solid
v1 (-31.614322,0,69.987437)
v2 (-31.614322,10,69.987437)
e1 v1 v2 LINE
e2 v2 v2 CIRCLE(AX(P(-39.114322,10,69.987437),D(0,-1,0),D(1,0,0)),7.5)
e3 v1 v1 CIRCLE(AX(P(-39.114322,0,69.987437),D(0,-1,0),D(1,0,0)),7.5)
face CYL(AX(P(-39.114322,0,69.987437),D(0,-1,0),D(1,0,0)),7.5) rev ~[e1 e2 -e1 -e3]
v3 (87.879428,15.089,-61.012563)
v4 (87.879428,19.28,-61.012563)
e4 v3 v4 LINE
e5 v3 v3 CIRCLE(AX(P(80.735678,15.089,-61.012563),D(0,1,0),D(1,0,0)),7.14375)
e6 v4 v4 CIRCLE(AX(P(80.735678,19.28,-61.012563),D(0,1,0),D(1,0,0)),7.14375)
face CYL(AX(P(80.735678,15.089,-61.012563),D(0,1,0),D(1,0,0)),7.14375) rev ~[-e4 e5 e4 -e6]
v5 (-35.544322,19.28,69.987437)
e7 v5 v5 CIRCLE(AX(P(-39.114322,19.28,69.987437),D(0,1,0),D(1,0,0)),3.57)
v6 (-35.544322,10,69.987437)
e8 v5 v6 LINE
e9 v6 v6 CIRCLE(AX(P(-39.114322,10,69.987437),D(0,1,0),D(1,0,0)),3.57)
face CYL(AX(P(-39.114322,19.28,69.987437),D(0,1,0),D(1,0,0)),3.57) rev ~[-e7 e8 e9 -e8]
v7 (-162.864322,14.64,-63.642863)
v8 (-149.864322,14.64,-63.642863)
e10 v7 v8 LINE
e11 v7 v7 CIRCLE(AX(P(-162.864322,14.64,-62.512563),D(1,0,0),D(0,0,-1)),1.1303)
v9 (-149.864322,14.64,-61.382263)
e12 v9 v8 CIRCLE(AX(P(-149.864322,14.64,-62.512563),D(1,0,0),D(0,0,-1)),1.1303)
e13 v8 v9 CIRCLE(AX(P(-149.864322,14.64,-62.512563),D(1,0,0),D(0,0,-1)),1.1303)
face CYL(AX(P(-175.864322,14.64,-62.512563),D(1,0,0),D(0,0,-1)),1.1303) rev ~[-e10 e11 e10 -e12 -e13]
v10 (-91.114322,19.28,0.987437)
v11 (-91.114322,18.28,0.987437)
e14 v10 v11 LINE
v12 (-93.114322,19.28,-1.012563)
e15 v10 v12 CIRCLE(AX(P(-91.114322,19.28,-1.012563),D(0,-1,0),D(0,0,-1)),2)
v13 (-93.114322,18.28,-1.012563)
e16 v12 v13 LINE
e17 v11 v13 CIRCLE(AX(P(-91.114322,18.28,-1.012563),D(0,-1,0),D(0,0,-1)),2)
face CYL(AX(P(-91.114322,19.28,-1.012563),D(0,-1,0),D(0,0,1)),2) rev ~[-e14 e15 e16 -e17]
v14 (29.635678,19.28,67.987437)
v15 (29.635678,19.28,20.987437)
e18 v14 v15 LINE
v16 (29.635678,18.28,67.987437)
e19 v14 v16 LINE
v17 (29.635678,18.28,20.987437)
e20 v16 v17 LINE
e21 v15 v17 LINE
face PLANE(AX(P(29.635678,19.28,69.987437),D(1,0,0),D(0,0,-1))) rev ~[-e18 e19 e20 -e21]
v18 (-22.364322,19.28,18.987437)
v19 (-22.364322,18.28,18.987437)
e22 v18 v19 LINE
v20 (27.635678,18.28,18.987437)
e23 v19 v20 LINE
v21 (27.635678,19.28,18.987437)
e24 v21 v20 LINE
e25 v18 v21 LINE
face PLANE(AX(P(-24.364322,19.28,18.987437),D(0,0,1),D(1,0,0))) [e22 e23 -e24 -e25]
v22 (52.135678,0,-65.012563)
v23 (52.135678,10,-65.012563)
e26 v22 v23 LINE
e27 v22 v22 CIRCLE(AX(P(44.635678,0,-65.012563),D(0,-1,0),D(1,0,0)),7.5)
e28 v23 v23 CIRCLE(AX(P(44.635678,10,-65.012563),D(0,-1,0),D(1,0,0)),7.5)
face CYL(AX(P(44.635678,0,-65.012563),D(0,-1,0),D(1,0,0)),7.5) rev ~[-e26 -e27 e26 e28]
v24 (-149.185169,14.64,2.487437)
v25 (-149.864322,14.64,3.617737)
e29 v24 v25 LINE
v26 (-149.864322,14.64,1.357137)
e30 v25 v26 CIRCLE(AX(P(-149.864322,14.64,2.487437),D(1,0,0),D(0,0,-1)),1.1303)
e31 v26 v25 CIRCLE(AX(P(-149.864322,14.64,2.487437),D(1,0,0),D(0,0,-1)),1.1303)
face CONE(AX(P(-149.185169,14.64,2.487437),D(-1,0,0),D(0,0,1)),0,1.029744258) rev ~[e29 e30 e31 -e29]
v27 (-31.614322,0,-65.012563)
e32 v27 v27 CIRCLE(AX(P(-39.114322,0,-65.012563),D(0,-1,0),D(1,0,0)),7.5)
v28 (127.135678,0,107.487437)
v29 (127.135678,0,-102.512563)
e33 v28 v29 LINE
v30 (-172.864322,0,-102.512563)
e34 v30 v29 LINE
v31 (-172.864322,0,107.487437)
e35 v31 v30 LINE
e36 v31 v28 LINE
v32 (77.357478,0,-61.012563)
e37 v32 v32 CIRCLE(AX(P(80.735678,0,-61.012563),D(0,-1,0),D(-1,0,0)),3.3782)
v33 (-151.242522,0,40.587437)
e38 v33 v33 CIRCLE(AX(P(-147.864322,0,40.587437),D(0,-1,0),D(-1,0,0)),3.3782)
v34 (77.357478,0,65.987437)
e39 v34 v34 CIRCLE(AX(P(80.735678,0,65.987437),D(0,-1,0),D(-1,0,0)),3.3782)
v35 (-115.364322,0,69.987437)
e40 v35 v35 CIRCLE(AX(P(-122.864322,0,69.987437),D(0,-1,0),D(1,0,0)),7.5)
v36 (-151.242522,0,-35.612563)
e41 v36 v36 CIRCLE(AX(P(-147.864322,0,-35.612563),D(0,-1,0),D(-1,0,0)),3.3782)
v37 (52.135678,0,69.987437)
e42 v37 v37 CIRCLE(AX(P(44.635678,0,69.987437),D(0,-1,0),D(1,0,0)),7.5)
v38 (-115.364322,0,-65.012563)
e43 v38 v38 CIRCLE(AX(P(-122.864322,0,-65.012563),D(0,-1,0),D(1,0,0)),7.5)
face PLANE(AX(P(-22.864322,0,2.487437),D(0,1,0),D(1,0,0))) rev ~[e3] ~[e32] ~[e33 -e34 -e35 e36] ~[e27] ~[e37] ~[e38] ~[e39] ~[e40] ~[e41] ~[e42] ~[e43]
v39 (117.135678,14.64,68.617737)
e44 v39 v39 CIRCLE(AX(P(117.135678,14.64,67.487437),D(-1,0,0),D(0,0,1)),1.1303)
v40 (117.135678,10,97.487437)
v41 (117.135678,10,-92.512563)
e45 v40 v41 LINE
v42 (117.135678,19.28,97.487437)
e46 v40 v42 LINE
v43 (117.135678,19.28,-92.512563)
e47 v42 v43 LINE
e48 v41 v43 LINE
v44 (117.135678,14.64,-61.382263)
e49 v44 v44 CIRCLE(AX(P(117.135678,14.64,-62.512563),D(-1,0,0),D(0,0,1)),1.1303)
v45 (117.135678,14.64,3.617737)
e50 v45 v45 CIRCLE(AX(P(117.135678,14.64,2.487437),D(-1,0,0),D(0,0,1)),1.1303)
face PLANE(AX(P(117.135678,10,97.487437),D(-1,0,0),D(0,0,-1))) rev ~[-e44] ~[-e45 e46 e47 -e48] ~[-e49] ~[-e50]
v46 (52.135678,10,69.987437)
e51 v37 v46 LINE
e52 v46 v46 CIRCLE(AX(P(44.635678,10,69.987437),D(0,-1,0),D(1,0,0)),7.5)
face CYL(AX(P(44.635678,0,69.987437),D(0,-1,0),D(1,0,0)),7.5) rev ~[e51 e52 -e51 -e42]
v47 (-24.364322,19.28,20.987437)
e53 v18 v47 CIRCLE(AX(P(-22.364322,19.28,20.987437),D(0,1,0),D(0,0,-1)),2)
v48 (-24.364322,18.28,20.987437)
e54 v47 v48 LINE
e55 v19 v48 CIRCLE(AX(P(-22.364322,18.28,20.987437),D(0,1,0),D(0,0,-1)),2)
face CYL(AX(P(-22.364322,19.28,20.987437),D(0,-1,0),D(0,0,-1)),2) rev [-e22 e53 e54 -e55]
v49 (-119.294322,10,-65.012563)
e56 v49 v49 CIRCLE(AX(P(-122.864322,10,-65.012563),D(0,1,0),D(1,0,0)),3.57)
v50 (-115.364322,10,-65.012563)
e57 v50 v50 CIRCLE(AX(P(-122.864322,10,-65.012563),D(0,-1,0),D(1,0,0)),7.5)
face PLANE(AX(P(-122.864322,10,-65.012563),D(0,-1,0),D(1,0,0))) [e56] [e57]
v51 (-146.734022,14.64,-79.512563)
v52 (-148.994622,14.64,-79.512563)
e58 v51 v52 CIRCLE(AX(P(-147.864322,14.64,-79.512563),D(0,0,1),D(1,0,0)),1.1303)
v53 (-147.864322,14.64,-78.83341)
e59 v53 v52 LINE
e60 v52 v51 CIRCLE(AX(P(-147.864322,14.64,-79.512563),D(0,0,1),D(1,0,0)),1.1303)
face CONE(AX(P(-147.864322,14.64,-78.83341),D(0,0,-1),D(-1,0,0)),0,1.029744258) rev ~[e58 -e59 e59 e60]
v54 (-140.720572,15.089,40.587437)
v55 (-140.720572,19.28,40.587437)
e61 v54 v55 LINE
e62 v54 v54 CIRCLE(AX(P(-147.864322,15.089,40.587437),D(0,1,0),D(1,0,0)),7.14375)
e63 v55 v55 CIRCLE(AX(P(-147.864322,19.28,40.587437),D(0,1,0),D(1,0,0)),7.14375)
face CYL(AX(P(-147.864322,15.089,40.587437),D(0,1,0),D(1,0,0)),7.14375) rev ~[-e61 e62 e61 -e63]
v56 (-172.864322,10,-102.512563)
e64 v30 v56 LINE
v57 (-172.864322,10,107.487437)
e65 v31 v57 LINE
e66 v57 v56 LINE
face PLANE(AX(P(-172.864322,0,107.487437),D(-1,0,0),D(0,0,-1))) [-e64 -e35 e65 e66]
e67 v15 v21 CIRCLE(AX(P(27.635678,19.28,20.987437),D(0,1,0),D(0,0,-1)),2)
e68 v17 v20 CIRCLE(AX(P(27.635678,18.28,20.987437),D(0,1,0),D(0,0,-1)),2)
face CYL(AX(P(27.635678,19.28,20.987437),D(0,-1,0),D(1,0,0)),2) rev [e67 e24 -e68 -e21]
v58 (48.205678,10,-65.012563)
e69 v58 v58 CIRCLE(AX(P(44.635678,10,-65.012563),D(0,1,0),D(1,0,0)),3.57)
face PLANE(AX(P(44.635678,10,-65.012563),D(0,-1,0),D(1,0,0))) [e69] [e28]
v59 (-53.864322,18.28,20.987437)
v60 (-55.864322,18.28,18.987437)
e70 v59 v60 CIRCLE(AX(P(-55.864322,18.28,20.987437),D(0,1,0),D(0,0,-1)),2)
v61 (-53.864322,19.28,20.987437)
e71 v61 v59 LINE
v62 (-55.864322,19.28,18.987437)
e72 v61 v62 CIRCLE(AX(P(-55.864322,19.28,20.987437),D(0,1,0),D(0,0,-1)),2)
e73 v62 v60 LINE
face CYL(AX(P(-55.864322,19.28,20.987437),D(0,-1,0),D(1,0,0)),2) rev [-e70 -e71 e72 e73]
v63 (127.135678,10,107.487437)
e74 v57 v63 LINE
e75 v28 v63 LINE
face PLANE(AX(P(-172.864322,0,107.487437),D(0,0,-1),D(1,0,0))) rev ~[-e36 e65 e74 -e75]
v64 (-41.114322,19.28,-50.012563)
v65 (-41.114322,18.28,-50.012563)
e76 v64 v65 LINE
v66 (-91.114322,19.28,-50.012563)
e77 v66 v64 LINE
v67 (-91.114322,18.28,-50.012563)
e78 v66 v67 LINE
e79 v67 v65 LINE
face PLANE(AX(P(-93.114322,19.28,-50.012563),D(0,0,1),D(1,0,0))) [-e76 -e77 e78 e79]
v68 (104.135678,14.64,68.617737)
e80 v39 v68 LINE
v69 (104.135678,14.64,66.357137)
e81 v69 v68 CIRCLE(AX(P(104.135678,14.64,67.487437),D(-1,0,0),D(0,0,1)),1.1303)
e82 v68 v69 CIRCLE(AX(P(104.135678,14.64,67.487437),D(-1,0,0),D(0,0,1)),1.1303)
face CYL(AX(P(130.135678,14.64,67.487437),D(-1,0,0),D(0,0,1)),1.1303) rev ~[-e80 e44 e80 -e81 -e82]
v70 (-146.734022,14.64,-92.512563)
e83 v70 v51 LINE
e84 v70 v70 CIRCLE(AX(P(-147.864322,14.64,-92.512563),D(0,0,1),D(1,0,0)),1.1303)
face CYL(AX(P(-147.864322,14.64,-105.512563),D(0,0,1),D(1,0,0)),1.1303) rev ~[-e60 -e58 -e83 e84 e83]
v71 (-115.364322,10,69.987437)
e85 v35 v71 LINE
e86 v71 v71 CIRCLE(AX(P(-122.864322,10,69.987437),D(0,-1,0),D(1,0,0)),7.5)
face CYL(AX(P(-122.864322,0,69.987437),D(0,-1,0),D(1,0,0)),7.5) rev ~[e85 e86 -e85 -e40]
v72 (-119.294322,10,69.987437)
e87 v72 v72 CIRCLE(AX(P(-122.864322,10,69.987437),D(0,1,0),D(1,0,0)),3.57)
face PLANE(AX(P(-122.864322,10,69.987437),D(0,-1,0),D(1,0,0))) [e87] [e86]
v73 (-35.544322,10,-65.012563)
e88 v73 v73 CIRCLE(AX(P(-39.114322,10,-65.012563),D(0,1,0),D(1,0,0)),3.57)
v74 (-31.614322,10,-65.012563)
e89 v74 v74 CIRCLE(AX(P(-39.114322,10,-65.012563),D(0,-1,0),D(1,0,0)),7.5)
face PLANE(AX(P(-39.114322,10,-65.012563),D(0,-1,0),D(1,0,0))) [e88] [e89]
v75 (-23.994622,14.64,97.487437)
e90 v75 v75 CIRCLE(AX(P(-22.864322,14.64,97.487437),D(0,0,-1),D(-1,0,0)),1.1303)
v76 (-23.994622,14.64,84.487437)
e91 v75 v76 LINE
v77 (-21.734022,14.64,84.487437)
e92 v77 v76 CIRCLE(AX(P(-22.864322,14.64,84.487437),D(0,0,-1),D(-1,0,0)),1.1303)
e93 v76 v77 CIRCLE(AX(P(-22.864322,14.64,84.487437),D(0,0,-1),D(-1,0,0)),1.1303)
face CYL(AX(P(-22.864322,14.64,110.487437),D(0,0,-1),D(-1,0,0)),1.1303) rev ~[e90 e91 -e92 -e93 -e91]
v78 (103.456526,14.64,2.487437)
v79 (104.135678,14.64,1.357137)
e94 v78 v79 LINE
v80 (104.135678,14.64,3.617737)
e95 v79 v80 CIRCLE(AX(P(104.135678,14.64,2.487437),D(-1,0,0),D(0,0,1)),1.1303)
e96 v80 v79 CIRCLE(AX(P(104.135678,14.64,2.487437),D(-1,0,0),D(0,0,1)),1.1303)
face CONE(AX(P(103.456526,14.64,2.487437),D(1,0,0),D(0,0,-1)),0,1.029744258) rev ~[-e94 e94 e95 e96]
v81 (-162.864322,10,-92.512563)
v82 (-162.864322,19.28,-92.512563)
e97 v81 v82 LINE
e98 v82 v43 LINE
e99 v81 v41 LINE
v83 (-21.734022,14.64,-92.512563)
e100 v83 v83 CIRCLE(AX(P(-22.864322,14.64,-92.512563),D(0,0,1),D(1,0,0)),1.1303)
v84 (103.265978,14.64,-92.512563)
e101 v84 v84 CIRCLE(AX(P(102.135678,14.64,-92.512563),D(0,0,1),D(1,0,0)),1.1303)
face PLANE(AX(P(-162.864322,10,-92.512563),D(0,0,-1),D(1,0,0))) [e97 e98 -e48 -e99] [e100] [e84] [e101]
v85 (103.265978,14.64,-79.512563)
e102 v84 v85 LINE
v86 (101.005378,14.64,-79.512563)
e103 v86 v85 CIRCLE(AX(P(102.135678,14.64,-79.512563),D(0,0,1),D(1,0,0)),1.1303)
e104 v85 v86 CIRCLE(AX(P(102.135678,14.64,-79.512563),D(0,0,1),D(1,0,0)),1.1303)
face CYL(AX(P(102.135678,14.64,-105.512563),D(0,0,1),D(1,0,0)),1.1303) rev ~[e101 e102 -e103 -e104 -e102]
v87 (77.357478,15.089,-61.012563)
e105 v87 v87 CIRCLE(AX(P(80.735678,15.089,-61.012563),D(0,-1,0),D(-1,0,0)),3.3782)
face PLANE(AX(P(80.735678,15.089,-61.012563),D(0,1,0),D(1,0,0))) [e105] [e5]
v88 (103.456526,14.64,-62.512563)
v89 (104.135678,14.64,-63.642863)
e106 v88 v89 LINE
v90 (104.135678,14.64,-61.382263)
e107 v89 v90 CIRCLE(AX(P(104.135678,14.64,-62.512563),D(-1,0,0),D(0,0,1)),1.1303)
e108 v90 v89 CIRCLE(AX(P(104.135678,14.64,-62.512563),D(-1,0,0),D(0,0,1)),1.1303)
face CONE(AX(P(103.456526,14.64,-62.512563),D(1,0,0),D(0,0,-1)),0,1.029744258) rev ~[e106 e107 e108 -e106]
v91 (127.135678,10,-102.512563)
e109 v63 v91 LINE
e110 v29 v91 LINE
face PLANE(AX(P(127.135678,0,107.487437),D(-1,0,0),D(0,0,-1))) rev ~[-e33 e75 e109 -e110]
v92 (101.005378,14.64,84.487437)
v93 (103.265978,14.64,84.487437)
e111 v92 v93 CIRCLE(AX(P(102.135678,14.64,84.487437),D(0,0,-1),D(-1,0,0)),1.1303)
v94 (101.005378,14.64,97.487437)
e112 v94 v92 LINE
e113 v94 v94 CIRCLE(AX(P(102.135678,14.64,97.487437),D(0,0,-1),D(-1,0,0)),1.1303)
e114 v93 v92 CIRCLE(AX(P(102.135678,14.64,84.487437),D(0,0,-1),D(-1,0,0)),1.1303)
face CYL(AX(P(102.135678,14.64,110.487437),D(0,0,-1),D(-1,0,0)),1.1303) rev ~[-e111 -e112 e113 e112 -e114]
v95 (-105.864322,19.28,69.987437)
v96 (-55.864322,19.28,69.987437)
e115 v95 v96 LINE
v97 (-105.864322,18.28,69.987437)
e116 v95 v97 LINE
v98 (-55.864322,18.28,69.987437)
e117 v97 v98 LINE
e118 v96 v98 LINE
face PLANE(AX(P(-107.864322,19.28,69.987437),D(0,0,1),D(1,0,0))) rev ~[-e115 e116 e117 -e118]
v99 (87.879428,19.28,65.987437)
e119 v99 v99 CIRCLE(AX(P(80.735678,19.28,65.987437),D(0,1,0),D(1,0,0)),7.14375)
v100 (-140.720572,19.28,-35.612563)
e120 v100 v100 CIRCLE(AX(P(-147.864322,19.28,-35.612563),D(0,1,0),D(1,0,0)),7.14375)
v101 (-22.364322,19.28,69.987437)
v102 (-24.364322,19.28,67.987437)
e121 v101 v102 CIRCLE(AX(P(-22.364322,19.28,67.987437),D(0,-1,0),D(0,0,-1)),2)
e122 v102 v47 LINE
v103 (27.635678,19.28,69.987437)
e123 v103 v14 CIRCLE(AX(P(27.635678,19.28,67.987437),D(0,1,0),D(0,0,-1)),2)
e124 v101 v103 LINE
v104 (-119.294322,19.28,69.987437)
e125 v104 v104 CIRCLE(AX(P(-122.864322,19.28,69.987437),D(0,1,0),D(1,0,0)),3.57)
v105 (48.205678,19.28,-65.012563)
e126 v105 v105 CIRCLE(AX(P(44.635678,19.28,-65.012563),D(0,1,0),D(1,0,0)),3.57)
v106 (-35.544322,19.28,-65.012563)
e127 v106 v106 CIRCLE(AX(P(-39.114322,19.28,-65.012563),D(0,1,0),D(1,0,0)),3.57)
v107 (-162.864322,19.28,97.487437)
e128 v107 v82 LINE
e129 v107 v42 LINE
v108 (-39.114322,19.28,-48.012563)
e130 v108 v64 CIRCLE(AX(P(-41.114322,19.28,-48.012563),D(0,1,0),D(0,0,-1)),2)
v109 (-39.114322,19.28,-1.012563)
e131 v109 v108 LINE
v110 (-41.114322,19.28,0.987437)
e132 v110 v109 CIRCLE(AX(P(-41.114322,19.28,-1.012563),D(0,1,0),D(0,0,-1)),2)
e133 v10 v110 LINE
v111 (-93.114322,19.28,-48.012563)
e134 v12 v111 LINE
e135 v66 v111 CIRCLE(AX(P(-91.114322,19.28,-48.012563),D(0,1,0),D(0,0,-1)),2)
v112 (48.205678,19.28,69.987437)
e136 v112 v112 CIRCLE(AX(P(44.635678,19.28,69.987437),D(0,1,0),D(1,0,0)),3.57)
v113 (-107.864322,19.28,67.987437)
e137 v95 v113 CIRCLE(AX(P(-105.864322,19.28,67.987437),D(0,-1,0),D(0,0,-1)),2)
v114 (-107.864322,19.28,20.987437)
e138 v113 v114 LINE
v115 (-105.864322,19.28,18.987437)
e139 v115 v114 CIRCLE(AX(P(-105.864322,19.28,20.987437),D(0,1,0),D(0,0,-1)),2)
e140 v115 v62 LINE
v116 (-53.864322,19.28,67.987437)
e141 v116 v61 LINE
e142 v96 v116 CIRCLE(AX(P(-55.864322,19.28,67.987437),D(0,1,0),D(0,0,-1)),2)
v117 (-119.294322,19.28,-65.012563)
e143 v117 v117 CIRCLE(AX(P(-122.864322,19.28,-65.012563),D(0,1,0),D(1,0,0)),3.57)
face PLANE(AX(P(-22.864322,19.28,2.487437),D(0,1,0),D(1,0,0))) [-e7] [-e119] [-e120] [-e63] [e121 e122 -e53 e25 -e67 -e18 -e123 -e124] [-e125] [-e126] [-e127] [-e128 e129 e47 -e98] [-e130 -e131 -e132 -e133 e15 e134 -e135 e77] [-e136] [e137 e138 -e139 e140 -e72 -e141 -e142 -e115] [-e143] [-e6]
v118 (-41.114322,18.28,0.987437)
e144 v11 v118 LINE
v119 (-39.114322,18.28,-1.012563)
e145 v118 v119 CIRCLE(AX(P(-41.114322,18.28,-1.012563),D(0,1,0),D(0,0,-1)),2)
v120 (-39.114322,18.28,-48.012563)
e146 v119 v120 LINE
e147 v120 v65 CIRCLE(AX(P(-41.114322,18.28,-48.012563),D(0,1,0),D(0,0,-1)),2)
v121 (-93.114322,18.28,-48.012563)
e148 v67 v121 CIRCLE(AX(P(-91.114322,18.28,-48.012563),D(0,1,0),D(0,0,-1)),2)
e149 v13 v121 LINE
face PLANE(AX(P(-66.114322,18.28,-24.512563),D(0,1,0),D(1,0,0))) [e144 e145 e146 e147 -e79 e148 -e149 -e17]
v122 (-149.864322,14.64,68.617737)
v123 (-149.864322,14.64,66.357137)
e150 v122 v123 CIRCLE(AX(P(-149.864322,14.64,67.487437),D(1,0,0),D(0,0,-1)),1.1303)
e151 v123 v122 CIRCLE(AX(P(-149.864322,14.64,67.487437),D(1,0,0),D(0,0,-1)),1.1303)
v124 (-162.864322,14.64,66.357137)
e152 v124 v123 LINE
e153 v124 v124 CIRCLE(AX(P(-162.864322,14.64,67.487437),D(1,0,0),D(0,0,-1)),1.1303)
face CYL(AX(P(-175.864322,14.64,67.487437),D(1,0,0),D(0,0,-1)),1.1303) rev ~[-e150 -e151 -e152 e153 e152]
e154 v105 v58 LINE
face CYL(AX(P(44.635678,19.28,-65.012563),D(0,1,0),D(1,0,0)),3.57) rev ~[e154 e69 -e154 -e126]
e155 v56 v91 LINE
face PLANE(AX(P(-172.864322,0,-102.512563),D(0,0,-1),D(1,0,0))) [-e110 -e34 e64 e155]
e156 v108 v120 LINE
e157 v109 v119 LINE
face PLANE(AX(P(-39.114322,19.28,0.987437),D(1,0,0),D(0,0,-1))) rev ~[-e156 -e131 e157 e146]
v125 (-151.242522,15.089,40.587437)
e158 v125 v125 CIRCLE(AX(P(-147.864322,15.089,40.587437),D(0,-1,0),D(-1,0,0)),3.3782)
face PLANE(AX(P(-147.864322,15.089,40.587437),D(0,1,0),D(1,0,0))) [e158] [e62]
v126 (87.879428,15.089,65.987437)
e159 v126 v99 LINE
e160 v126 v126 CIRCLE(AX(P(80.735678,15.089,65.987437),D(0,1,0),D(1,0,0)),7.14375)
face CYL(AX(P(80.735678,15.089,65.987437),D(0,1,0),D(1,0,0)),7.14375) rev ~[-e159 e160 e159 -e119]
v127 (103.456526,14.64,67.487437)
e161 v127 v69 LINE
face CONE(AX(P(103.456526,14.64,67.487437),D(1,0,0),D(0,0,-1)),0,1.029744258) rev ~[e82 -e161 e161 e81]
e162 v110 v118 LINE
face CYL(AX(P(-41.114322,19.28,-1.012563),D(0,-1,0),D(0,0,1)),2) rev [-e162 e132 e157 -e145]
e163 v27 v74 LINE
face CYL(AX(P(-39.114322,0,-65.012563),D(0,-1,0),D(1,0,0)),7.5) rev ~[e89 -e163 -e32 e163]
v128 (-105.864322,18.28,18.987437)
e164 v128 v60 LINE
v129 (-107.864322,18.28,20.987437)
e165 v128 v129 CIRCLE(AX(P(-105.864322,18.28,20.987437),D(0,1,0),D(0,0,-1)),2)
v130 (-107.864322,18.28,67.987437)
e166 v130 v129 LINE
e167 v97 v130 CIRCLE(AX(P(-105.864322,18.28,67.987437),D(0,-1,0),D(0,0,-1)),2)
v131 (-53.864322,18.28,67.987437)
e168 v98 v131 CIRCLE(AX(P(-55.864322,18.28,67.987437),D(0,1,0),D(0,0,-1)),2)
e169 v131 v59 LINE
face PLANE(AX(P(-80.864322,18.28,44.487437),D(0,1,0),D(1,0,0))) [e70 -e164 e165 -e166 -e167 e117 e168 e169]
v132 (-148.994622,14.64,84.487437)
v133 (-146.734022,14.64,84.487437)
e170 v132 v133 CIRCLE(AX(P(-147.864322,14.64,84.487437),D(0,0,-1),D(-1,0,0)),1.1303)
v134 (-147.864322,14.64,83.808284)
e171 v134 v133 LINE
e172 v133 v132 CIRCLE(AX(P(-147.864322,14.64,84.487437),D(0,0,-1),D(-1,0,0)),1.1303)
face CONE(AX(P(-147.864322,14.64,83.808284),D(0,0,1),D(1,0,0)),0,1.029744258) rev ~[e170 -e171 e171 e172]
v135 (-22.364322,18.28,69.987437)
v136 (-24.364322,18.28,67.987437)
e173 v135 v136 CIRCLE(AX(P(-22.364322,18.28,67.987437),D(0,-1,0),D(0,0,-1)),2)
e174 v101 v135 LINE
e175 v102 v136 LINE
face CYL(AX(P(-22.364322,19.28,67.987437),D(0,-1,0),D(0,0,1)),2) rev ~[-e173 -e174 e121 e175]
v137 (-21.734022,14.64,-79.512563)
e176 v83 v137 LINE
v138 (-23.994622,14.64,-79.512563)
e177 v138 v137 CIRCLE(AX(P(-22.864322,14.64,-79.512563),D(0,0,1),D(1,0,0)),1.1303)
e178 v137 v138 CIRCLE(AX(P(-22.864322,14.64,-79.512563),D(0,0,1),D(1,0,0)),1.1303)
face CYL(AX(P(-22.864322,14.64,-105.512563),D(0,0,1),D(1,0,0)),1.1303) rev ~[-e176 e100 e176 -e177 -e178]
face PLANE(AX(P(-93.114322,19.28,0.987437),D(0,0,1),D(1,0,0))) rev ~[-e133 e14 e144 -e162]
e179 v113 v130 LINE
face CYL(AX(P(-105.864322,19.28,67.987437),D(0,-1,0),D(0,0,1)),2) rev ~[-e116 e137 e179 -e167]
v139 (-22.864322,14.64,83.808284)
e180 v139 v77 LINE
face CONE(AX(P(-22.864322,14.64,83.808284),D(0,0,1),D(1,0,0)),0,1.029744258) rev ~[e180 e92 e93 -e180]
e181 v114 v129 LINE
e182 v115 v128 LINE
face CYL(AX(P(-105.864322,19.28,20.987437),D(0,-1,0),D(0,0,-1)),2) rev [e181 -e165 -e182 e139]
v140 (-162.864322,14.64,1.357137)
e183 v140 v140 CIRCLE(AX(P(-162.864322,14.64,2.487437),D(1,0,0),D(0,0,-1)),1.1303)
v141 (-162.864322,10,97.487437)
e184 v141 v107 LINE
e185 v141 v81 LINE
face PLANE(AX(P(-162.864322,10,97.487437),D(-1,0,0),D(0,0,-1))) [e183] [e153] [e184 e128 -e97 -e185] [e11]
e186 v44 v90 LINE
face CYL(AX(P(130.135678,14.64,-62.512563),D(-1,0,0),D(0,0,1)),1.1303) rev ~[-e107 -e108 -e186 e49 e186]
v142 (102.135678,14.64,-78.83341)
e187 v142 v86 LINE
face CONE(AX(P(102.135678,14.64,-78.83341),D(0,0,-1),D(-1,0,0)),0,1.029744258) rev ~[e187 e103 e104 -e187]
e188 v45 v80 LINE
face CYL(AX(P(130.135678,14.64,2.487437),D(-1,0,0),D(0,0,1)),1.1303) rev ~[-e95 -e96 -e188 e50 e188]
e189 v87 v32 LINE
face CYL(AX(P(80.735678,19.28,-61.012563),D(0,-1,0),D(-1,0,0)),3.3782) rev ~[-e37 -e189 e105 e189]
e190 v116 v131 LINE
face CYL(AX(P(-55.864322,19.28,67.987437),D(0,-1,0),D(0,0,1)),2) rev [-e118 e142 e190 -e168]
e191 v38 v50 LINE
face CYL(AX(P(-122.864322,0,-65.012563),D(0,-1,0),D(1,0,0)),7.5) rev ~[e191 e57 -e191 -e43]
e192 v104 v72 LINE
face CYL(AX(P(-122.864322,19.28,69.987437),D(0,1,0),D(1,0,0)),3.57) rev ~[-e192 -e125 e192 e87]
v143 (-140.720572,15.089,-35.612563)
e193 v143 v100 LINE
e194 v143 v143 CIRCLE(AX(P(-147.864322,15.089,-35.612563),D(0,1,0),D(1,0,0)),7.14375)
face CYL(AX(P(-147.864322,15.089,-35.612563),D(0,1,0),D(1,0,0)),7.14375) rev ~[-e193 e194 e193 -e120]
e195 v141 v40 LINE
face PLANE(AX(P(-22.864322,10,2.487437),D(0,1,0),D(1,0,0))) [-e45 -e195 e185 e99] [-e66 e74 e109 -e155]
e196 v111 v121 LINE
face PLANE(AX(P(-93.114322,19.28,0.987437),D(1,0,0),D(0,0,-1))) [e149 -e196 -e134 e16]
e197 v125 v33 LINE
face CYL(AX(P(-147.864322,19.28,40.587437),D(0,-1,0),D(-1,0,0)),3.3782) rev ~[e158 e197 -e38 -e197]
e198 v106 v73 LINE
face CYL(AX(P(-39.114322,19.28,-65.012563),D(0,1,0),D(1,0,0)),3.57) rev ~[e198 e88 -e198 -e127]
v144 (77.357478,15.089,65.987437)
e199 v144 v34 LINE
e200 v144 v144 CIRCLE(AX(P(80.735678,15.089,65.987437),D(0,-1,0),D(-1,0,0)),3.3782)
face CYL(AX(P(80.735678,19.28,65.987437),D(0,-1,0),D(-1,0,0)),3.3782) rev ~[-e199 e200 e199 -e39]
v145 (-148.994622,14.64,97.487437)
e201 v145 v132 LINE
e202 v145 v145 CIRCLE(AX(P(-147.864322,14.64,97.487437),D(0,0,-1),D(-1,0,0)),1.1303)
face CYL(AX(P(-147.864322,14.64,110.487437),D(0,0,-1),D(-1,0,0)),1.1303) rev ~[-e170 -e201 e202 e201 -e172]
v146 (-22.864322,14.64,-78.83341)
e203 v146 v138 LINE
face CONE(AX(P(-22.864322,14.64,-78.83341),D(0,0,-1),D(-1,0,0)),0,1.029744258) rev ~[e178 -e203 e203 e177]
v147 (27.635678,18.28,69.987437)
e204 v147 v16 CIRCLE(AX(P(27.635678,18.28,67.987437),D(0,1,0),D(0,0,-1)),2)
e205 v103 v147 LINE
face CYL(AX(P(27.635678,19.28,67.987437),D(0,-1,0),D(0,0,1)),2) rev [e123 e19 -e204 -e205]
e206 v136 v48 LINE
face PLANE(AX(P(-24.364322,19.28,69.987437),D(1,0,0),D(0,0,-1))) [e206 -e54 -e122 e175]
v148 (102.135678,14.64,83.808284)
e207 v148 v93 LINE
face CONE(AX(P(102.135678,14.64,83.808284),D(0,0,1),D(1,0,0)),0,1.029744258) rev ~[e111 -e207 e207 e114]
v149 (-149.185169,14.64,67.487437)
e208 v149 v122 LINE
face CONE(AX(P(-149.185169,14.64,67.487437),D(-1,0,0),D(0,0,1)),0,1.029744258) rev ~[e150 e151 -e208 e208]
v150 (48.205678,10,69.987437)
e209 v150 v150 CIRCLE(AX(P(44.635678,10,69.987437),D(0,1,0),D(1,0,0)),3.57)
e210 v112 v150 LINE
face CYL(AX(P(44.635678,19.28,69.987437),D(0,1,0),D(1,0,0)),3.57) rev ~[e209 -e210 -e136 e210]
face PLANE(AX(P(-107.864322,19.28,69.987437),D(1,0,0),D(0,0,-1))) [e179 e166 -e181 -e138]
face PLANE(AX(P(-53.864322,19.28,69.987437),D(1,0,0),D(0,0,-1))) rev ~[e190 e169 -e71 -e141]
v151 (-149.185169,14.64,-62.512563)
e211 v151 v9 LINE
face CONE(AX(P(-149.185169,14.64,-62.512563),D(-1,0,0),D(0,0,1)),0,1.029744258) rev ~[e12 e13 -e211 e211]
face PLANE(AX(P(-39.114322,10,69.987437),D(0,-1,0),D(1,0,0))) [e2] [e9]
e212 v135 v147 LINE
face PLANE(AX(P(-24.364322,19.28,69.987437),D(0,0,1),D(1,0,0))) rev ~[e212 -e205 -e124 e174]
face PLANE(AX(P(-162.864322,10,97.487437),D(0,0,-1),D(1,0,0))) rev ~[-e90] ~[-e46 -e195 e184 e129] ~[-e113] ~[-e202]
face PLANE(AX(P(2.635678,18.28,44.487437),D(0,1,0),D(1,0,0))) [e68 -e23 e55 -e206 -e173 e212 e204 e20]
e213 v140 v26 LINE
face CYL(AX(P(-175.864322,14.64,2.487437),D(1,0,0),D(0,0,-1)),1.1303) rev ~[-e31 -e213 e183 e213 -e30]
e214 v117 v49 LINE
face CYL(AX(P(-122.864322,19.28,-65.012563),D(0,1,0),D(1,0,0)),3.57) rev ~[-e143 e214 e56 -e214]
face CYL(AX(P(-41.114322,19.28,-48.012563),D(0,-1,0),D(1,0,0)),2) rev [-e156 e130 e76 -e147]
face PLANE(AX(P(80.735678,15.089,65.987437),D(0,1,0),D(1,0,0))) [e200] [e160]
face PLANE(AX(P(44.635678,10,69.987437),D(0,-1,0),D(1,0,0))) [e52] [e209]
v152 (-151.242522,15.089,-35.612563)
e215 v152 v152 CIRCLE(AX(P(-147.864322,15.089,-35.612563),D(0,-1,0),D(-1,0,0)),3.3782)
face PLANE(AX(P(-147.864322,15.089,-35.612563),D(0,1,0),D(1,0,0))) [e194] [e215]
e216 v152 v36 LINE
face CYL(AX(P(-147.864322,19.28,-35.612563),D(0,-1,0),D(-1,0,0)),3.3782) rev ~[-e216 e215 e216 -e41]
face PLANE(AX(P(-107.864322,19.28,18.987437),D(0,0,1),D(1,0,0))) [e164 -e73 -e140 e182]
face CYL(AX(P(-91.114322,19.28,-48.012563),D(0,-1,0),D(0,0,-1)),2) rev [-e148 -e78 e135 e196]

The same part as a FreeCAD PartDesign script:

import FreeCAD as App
import Part
import Sketcher
from FreeCAD import Vector
Q = App.Units.Quantity


def edges_at(feature, points):
    """Names of the edges that pass closest to the given points."""
    edges = feature.Shape.Edges
    near = lambda p: min(range(len(edges)), key=lambda i: edges[i].distToShape(Part.Vertex(*p))[0])
    return sorted({f"Edge{near(p) + 1}" for p in points})

doc = App.newDocument("Part")
body = doc.addObject("PartDesign::Body", "Body")

# Sketch on XZ plane
sketch1 = body.newObject("Sketcher::SketchObject", "Sketch")
sketch1.AttachmentSupport = (doc.getObject("XZ_Plane"), [""])
sketch1.MapMode = "FlatFace"
sketch1.addGeometry([
    Part.LineSegment(Vector(-173, -103, 0), Vector(-173, 107, 0)),
    Part.LineSegment(Vector(-173, 107, 0), Vector(127, 107, 0)),
    Part.LineSegment(Vector(127, 107, 0), Vector(127, -103, 0)),
    Part.LineSegment(Vector(127, -103, 0), Vector(-173, -103, 0)),
], False)
sketch1.addConstraint([
    Sketcher.Constraint("Coincident", 0, 2, 1, 1),
    Sketcher.Constraint("Coincident", 1, 2, 2, 1),
    Sketcher.Constraint("Coincident", 2, 2, 3, 1),
    Sketcher.Constraint("Coincident", 3, 2, 0, 1),
    Sketcher.Constraint("Vertical", 0),
    Sketcher.Constraint("Horizontal", 1),
    Sketcher.Constraint("Vertical", 2),
    Sketcher.Constraint("Horizontal", 3),
    Sketcher.Constraint("DistanceX", 1, 1, 1, 2, Q("300 mm")),
    Sketcher.Constraint("DistanceY", 0, 1, 0, 2, Q("210 mm")),
    Sketcher.Constraint("DistanceX", 0, 2, -1, 1, Q("172.864322 mm")),
    Sketcher.Constraint("DistanceY", -1, 1, 0, 2, Q("107.487437 mm")),
])
pad1 = body.newObject("PartDesign::Pad", "Pad")
pad1.Profile = sketch1
pad1.Length = 10
pad1.Reversed = True

# Sketch on XZ plane
sketch2 = body.newObject("Sketcher::SketchObject", "Sketch001")
sketch2.AttachmentSupport = (doc.getObject("XZ_Plane"), [""])
sketch2.MapMode = "FlatFace"
sketch2.AttachmentOffset = App.Placement(Vector(0, 0, -10), App.Rotation())
sketch2.addGeometry([
    Part.LineSegment(Vector(-163, -93, 0), Vector(-163, 97, 0)),
    Part.LineSegment(Vector(-163, 97, 0), Vector(117, 97, 0)),
    Part.LineSegment(Vector(117, 97, 0), Vector(117, -93, 0)),
    Part.LineSegment(Vector(117, -93, 0), Vector(-163, -93, 0)),
], False)
sketch2.addConstraint([
    Sketcher.Constraint("Coincident", 0, 2, 1, 1),
    Sketcher.Constraint("Coincident", 1, 2, 2, 1),
    Sketcher.Constraint("Coincident", 2, 2, 3, 1),
    Sketcher.Constraint("Coincident", 3, 2, 0, 1),
    Sketcher.Constraint("Vertical", 0),
    Sketcher.Constraint("Horizontal", 1),
    Sketcher.Constraint("Vertical", 2),
    Sketcher.Constraint("Horizontal", 3),
    Sketcher.Constraint("DistanceX", 1, 1, 1, 2, Q("280 mm")),
    Sketcher.Constraint("DistanceY", 0, 1, 0, 2, Q("190 mm")),
    Sketcher.Constraint("DistanceX", 0, 2, -1, 1, Q("162.864322 mm")),
    Sketcher.Constraint("DistanceY", -1, 1, 0, 2, Q("97.487437 mm")),
])
pad2 = body.newObject("PartDesign::Pad", "Pad001")
pad2.Profile = sketch2
pad2.Length = 9.28
pad2.Reversed = True

# Sketch on XZ plane
sketch3 = body.newObject("Sketcher::SketchObject", "Sketch002")
sketch3.AttachmentSupport = (doc.getObject("XZ_Plane"), [""])
sketch3.MapMode = "FlatFace"
sketch3.AttachmentOffset = App.Placement(Vector(0, 0, -19.28), App.Rotation())
sketch3.addGeometry(Part.Circle(Vector(-122.9, -65, 0), Vector(0, 0, 1), 3.6), False)
sketch3.addConstraint([
    Sketcher.Constraint("Diameter", 0, Q("7.14 mm")),
    Sketcher.Constraint("DistanceX", 0, 3, -1, 1, Q("122.864322 mm")),
    Sketcher.Constraint("DistanceY", 0, 3, -1, 1, Q("65.012563 mm")),
])
pocket1 = body.newObject("PartDesign::Pocket", "Pocket")
pocket1.Profile = sketch3
pocket1.Type = "UpToFirst"
pocket1.Reversed = True

# Sketch on XZ plane
sketch4 = body.newObject("Sketcher::SketchObject", "Sketch003")
sketch4.AttachmentSupport = (doc.getObject("XZ_Plane"), [""])
sketch4.MapMode = "FlatFace"
sketch4.AttachmentOffset = App.Placement(Vector(0, 0, -19.28), App.Rotation())
sketch4.addGeometry(Part.Circle(Vector(-39.1, -65, 0), Vector(0, 0, 1), 3.6), False)
sketch4.addConstraint([
    Sketcher.Constraint("Diameter", 0, Q("7.14 mm")),
    Sketcher.Constraint("DistanceX", 0, 3, -1, 1, Q("39.114322 mm")),
    Sketcher.Constraint("DistanceY", 0, 3, -1, 1, Q("65.012563 mm")),
])
pocket2 = body.newObject("PartDesign::Pocket", "Pocket001")
pocket2.Profile = sketch4
pocket2.Type = "UpToFirst"
pocket2.Reversed = True

# Sketch on XZ plane
sketch5 = body.newObject("Sketcher::SketchObject", "Sketch004")
sketch5.AttachmentSupport = (doc.getObject("XZ_Plane"), [""])
sketch5.MapMode = "FlatFace"
sketch5.AttachmentOffset = App.Placement(Vector(0, 0, -19.28), App.Rotation())
sketch5.addGeometry(Part.Circle(Vector(44.6, -65, 0), Vector(0, 0, 1), 3.6), False)
sketch5.addConstraint([
    Sketcher.Constraint("Diameter", 0, Q("7.14 mm")),
    Sketcher.Constraint("DistanceX", -1, 1, 0, 3, Q("44.635678 mm")),
    Sketcher.Constraint("DistanceY", 0, 3, -1, 1, Q("65.012563 mm")),
])
pocket3 = body.newObject("PartDesign::Pocket", "Pocket002")
pocket3.Profile = sketch5
pocket3.Type = "UpToFirst"
pocket3.Reversed = True

# Sketch on XZ plane
sketch6 = body.newObject("Sketcher::SketchObject", "Sketch005")
sketch6.AttachmentSupport = (doc.getObject("XZ_Plane"), [""])
sketch6.MapMode = "FlatFace"
sketch6.AttachmentOffset = App.Placement(Vector(0, 0, -19.28), App.Rotation())
sketch6.addGeometry(Part.Circle(Vector(44.6, 70, 0), Vector(0, 0, 1), 3.6), False)
sketch6.addConstraint([
    Sketcher.Constraint("Diameter", 0, Q("7.14 mm")),
    Sketcher.Constraint("DistanceX", -1, 1, 0, 3, Q("44.635678 mm")),
    Sketcher.Constraint("DistanceY", -1, 1, 0, 3, Q("69.987437 mm")),
])
pocket4 = body.newObject("PartDesign::Pocket", "Pocket003")
pocket4.Profile = sketch6
pocket4.Type = "UpToFirst"
pocket4.Reversed = True

# Sketch on XZ plane
sketch7 = body.newObject("Sketcher::SketchObject", "Sketch006")
sketch7.AttachmentSupport = (doc.getObject("XZ_Plane"), [""])
sketch7.MapMode = "FlatFace"
sketch7.AttachmentOffset = App.Placement(Vector(0, 0, -19.28), App.Rotation())
sketch7.addGeometry(Part.Circle(Vector(-39.1, 70, 0), Vector(0, 0, 1), 3.6), False)
sketch7.addConstraint([
    Sketcher.Constraint("Diameter", 0, Q("7.14 mm")),
    Sketcher.Constraint("DistanceX", 0, 3, -1, 1, Q("39.114322 mm")),
    Sketcher.Constraint("DistanceY", -1, 1, 0, 3, Q("69.987437 mm")),
])
pocket5 = body.newObject("PartDesign::Pocket", "Pocket004")
pocket5.Profile = sketch7
pocket5.Type = "UpToFirst"
pocket5.Reversed = True

# Sketch on XZ plane
sketch8 = body.newObject("Sketcher::SketchObject", "Sketch007")
sketch8.AttachmentSupport = (doc.getObject("XZ_Plane"), [""])
sketch8.MapMode = "FlatFace"
sketch8.AttachmentOffset = App.Placement(Vector(0, 0, -19.28), App.Rotation())
sketch8.addGeometry(Part.Circle(Vector(-122.9, 70, 0), Vector(0, 0, 1), 3.6), False)
sketch8.addConstraint([
    Sketcher.Constraint("Diameter", 0, Q("7.14 mm")),
    Sketcher.Constraint("DistanceX", 0, 3, -1, 1, Q("122.864322 mm")),
    Sketcher.Constraint("DistanceY", -1, 1, 0, 3, Q("69.987437 mm")),
])
pocket6 = body.newObject("PartDesign::Pocket", "Pocket005")
pocket6.Profile = sketch8
pocket6.Type = "UpToFirst"
pocket6.Reversed = True

# Sketch on XZ plane
sketch9 = body.newObject("Sketcher::SketchObject", "Sketch008")
sketch9.AttachmentSupport = (doc.getObject("XZ_Plane"), [""])
sketch9.MapMode = "FlatFace"
sketch9.addGeometry([
    Part.Circle(Vector(-123, 70, 0), Vector(0, 0, 1), 8),  # 0
    Part.Circle(Vector(-39, 70, 0), Vector(0, 0, 1), 8),  # 1
    Part.Circle(Vector(45, 70, 0), Vector(0, 0, 1), 8),  # 2
    Part.Circle(Vector(45, -65, 0), Vector(0, 0, 1), 8),  # 3
    Part.Circle(Vector(-39, -65, 0), Vector(0, 0, 1), 8),  # 4
    Part.Circle(Vector(-123, -65, 0), Vector(0, 0, 1), 8),  # 5
], False)
sketch9.addConstraint([
    Sketcher.Constraint("Equal", 0, 1),
    Sketcher.Constraint("Equal", 1, 2),
    Sketcher.Constraint("Equal", 2, 3),
    Sketcher.Constraint("Equal", 3, 4),
    Sketcher.Constraint("Equal", 4, 5),
    Sketcher.Constraint("Horizontal", 0, 3, 1, 3),
    Sketcher.Constraint("Horizontal", 1, 3, 2, 3),
    Sketcher.Constraint("Horizontal", 3, 3, 4, 3),
    Sketcher.Constraint("Horizontal", 4, 3, 5, 3),
    Sketcher.Constraint("Vertical", 2, 3, 3, 3),
    Sketcher.Constraint("Vertical", 1, 3, 4, 3),
    Sketcher.Constraint("Vertical", 0, 3, 5, 3),
    Sketcher.Constraint("Diameter", 0, Q("15 mm")),
    Sketcher.Constraint("DistanceY", 3, 3, 2, 3, Q("135 mm")),
    Sketcher.Constraint("DistanceX", 0, 3, 2, 3, Q("167.5 mm")),
    Sketcher.Constraint("DistanceX", 0, 3, 1, 3, Q("83.75 mm")),
    Sketcher.Constraint("DistanceX", 0, 3, -1, 1, Q("122.864322 mm")),
    Sketcher.Constraint("DistanceY", -1, 1, 0, 3, Q("69.987437 mm")),
])
pocket7 = body.newObject("PartDesign::Pocket", "Pocket006")
pocket7.Profile = sketch9
pocket7.Length = 10

# Sketch on XZ plane
sketch10 = body.newObject("Sketcher::SketchObject", "Sketch009")
sketch10.AttachmentSupport = (doc.getObject("XZ_Plane"), [""])
sketch10.MapMode = "FlatFace"
sketch10.AttachmentOffset = App.Placement(Vector(0, 0, -19.28), App.Rotation())
sketch10.addGeometry([
    Part.LineSegment(Vector(-93, -50, 0), Vector(-93, 1, 0)),  # 0
    Part.LineSegment(Vector(-93, 1, 0), Vector(-39, 1, 0)),  # 1
    Part.LineSegment(Vector(-39, 1, 0), Vector(-39, -50, 0)),  # 2
    Part.LineSegment(Vector(-39, -50, 0), Vector(-93, -50, 0)),  # 3
    Part.LineSegment(Vector(-108, 19, 0), Vector(-108, 70, 0)),  # 4
    Part.LineSegment(Vector(-108, 70, 0), Vector(-54, 70, 0)),  # 5
    Part.LineSegment(Vector(-54, 70, 0), Vector(-54, 19, 0)),  # 6
    Part.LineSegment(Vector(-54, 19, 0), Vector(-108, 19, 0)),  # 7
    Part.LineSegment(Vector(-24, 19, 0), Vector(-24, 70, 0)),  # 8
    Part.LineSegment(Vector(-24, 70, 0), Vector(30, 70, 0)),  # 9
    Part.LineSegment(Vector(30, 70, 0), Vector(30, 19, 0)),  # 10
    Part.LineSegment(Vector(30, 19, 0), Vector(-24, 19, 0)),  # 11
], False)
sketch10.addConstraint([
    Sketcher.Constraint("Coincident", 0, 2, 1, 1),
    Sketcher.Constraint("Coincident", 1, 2, 2, 1),
    Sketcher.Constraint("Coincident", 2, 2, 3, 1),
    Sketcher.Constraint("Coincident", 3, 2, 0, 1),
    Sketcher.Constraint("Coincident", 4, 2, 5, 1),
    Sketcher.Constraint("Coincident", 5, 2, 6, 1),
    Sketcher.Constraint("Coincident", 6, 2, 7, 1),
    Sketcher.Constraint("Coincident", 7, 2, 4, 1),
    Sketcher.Constraint("Coincident", 8, 2, 9, 1),
    Sketcher.Constraint("Coincident", 9, 2, 10, 1),
    Sketcher.Constraint("Coincident", 10, 2, 11, 1),
    Sketcher.Constraint("Coincident", 11, 2, 8, 1),
    Sketcher.Constraint("Vertical", 0),
    Sketcher.Constraint("Horizontal", 1),
    Sketcher.Constraint("Vertical", 2),
    Sketcher.Constraint("Horizontal", 3),
    Sketcher.Constraint("Vertical", 4),
    Sketcher.Constraint("Horizontal", 5),
    Sketcher.Constraint("Vertical", 6),
    Sketcher.Constraint("Horizontal", 7),
    Sketcher.Constraint("Vertical", 8),
    Sketcher.Constraint("Horizontal", 9),
    Sketcher.Constraint("Vertical", 10),
    Sketcher.Constraint("Horizontal", 11),
    Sketcher.Constraint("Horizontal", 5, 2, 8, 2),
    Sketcher.Constraint("Horizontal", 7, 2, 10, 2),
    Sketcher.Constraint("Equal", 3, 5),
    Sketcher.Constraint("Equal", 7, 9),
    Sketcher.Constraint("Equal", 2, 4),
    Sketcher.Constraint("DistanceX", 1, 1, 1, 2, Q("54 mm")),
    Sketcher.Constraint("DistanceY", 0, 1, 0, 2, Q("51 mm")),
    Sketcher.Constraint("DistanceY", 0, 2, 4, 2, Q("69 mm")),
    Sketcher.Constraint("DistanceX", 5, 2, 8, 2, Q("29.5 mm")),
    Sketcher.Constraint("DistanceX", 4, 2, 0, 2, Q("14.75 mm")),
    Sketcher.Constraint("DistanceX", 0, 2, -1, 1, Q("93.114322 mm")),
    Sketcher.Constraint("DistanceY", -1, 1, 0, 2, Q("0.987437 mm")),
])
pocket8 = body.newObject("PartDesign::Pocket", "Pocket007")
pocket8.Profile = sketch10
pocket8.Length = 1
pocket8.Reversed = True
doc.recompute()

fillet = body.newObject("PartDesign::Fillet", "Fillet")
fillet.Base = (pocket8, edges_at(pocket8, [
    (29.636, 18.78, 69.987),
    (-24.364, 18.78, 69.987),
    (-24.364, 18.78, 18.987),
    (29.636, 18.78, 18.987),
    (-39.114, 18.78, -50.013),
    (-39.114, 18.78, 0.987),
    (-93.114, 18.78, 0.987),
    (-93.114, 18.78, -50.013),
    (-53.864, 18.78, 69.987),
    (-107.864, 18.78, 69.987),
    (-107.864, 18.78, 18.987),
    (-53.864, 18.78, 18.987),
]))
fillet.Radius = 2

# Sketch on YZ plane
sketch11 = body.newObject("Sketcher::SketchObject", "Sketch010")
sketch11.AttachmentSupport = (doc.getObject("YZ_Plane"), [""])
sketch11.MapMode = "FlatFace"
sketch11.AttachmentOffset = App.Placement(Vector(0, 0, -162.864322), App.Rotation())
sketch11.addGeometry([
    Part.Circle(Vector(14.6, -62.5, 0), Vector(0, 0, 1), 1.1),
    Part.Circle(Vector(14.6, 2.5, 0), Vector(0, 0, 1), 1.1),
    Part.Circle(Vector(14.6, 67.5, 0), Vector(0, 0, 1), 1.1),
], False)
sketch11.addConstraint([
    Sketcher.Constraint("Equal", 0, 1),
    Sketcher.Constraint("Equal", 1, 2),
    Sketcher.Constraint("Vertical", 0, 3, 1, 3),
    Sketcher.Constraint("Vertical", 1, 3, 2, 3),
    Sketcher.Constraint("DistanceY", 0, 3, 1, 3, Q("65 mm")),
    Sketcher.Constraint("DistanceY", 1, 3, 2, 3, Q("65 mm")),
    Sketcher.Constraint("Diameter", 0, Q("2.2606 mm")),
    Sketcher.Constraint("DistanceX", -1, 1, 0, 3, Q("14.64 mm")),
    Sketcher.Constraint("DistanceY", 0, 3, -1, 1, Q("62.512563 mm")),
])
doc.recompute()
hole = body.newObject("PartDesign::Hole", "Hole")
hole.Profile = sketch11
hole.ThreadType = "None"
hole.Diameter = 2.2606
hole.DepthType = "Dimension"
hole.Depth = 13
hole.DrillPoint = "Angled"
hole.DrillPointAngle = 118
hole.Reversed = True

# Sketch on XY plane
sketch12 = body.newObject("Sketcher::SketchObject", "Sketch011")
sketch12.AttachmentSupport = (doc.getObject("XY_Plane"), [""])
sketch12.MapMode = "FlatFace"
sketch12.AttachmentOffset = App.Placement(Vector(0, 0, 97.487437), App.Rotation())
sketch12.addGeometry([
    Part.Circle(Vector(-147.9, 14.6, 0), Vector(0, 0, 1), 1.1),
    Part.Circle(Vector(-22.9, 14.6, 0), Vector(0, 0, 1), 1.1),
    Part.Circle(Vector(102.1, 14.6, 0), Vector(0, 0, 1), 1.1),
], False)
sketch12.addConstraint([
    Sketcher.Constraint("Equal", 0, 1),
    Sketcher.Constraint("Equal", 1, 2),
    Sketcher.Constraint("Horizontal", 0, 3, 1, 3),
    Sketcher.Constraint("Horizontal", 1, 3, 2, 3),
    Sketcher.Constraint("DistanceX", 0, 3, 1, 3, Q("125 mm")),
    Sketcher.Constraint("DistanceX", 1, 3, 2, 3, Q("125 mm")),
    Sketcher.Constraint("Diameter", 0, Q("2.2606 mm")),
    Sketcher.Constraint("DistanceY", -1, 1, 0, 3, Q("14.64 mm")),
    Sketcher.Constraint("DistanceX", 0, 3, -1, 1, Q("147.864322 mm")),
])
doc.recompute()
hole2 = body.newObject("PartDesign::Hole", "Hole001")
hole2.Profile = sketch12
hole2.ThreadType = "None"
hole2.Diameter = 2.2606
hole2.DepthType = "Dimension"
hole2.Depth = 13
hole2.DrillPoint = "Angled"
hole2.DrillPointAngle = 118

# Sketch on YZ plane
sketch13 = body.newObject("Sketcher::SketchObject", "Sketch012")
sketch13.AttachmentSupport = (doc.getObject("YZ_Plane"), [""])
sketch13.MapMode = "FlatFace"
sketch13.AttachmentOffset = App.Placement(Vector(0, 0, 117.135678), App.Rotation())
sketch13.addGeometry([
    Part.Circle(Vector(14.6, 67.5, 0), Vector(0, 0, 1), 1.1),
    Part.Circle(Vector(14.6, 2.5, 0), Vector(0, 0, 1), 1.1),
    Part.Circle(Vector(14.6, -62.5, 0), Vector(0, 0, 1), 1.1),
], False)
sketch13.addConstraint([
    Sketcher.Constraint("Equal", 0, 1),
    Sketcher.Constraint("Equal", 1, 2),
    Sketcher.Constraint("Vertical", 0, 3, 1, 3),
    Sketcher.Constraint("Vertical", 1, 3, 2, 3),
    Sketcher.Constraint("DistanceY", 1, 3, 0, 3, Q("65 mm")),
    Sketcher.Constraint("DistanceY", 2, 3, 1, 3, Q("65 mm")),
    Sketcher.Constraint("Diameter", 0, Q("2.2606 mm")),
    Sketcher.Constraint("DistanceX", -1, 1, 0, 3, Q("14.64 mm")),
    Sketcher.Constraint("DistanceY", -1, 1, 0, 3, Q("67.487437 mm")),
])
doc.recompute()
hole3 = body.newObject("PartDesign::Hole", "Hole002")
hole3.Profile = sketch13
hole3.ThreadType = "None"
hole3.Diameter = 2.2606
hole3.DepthType = "Dimension"
hole3.Depth = 13
hole3.DrillPoint = "Angled"
hole3.DrillPointAngle = 118

# Sketch on XY plane
sketch14 = body.newObject("Sketcher::SketchObject", "Sketch013")
sketch14.AttachmentSupport = (doc.getObject("XY_Plane"), [""])
sketch14.MapMode = "FlatFace"
sketch14.AttachmentOffset = App.Placement(Vector(0, 0, -92.512563), App.Rotation())
sketch14.addGeometry([
    Part.Circle(Vector(102.1, 14.6, 0), Vector(0, 0, 1), 1.1),
    Part.Circle(Vector(-22.9, 14.6, 0), Vector(0, 0, 1), 1.1),
    Part.Circle(Vector(-147.9, 14.6, 0), Vector(0, 0, 1), 1.1),
], False)
sketch14.addConstraint([
    Sketcher.Constraint("Equal", 0, 1),
    Sketcher.Constraint("Equal", 1, 2),
    Sketcher.Constraint("Horizontal", 0, 3, 1, 3),
    Sketcher.Constraint("Horizontal", 1, 3, 2, 3),
    Sketcher.Constraint("DistanceX", 1, 3, 0, 3, Q("125 mm")),
    Sketcher.Constraint("DistanceX", 2, 3, 1, 3, Q("125 mm")),
    Sketcher.Constraint("Diameter", 0, Q("2.2606 mm")),
    Sketcher.Constraint("DistanceY", -1, 1, 0, 3, Q("14.64 mm")),
    Sketcher.Constraint("DistanceX", -1, 1, 0, 3, Q("102.135678 mm")),
])
doc.recompute()
hole4 = body.newObject("PartDesign::Hole", "Hole003")
hole4.Profile = sketch14
hole4.ThreadType = "None"
hole4.Diameter = 2.2606
hole4.DepthType = "Dimension"
hole4.Depth = 13
hole4.DrillPoint = "Angled"
hole4.DrillPointAngle = 118
hole4.Reversed = True

# Sketch on XZ plane
sketch15 = body.newObject("Sketcher::SketchObject", "Sketch014")
sketch15.AttachmentSupport = (doc.getObject("XZ_Plane"), [""])
sketch15.MapMode = "FlatFace"
sketch15.AttachmentOffset = App.Placement(Vector(0, 0, -19.28), App.Rotation())
sketch15.addGeometry([
    Part.Circle(Vector(80.7, -61, 0), Vector(0, 0, 1), 3.4),
    Part.Circle(Vector(80.7, 66, 0), Vector(0, 0, 1), 3.4),
    Part.Circle(Vector(-147.9, -35.6, 0), Vector(0, 0, 1), 3.4),
    Part.Circle(Vector(-147.9, 40.6, 0), Vector(0, 0, 1), 3.4),
], False)
sketch15.addConstraint([
    Sketcher.Constraint("Equal", 0, 1),
    Sketcher.Constraint("Equal", 1, 2),
    Sketcher.Constraint("Equal", 2, 3),
    Sketcher.Constraint("Vertical", 0, 3, 1, 3),
    Sketcher.Constraint("Vertical", 2, 3, 3, 3),
    Sketcher.Constraint("DistanceY", 0, 3, 1, 3, Q("127 mm")),
    Sketcher.Constraint("Diameter", 0, Q("6.7564 mm")),
    Sketcher.Constraint("DistanceX", 2, 3, 0, 3, Q("228.6 mm")),
    Sketcher.Constraint("DistanceY", 0, 3, 2, 3, Q("25.4 mm")),
    Sketcher.Constraint("DistanceY", 2, 3, 3, 3, Q("76.2 mm")),
    Sketcher.Constraint("DistanceX", -1, 1, 0, 3, Q("80.735678 mm")),
    Sketcher.Constraint("DistanceY", 0, 3, -1, 1, Q("61.012563 mm")),
])
doc.recompute()
hole5 = body.newObject("PartDesign::Hole", "Hole004")
hole5.Profile = sketch15
hole5.ThreadType = "None"
hole5.Diameter = 6.7564
hole5.DepthType = "ThroughAll"
hole5.HoleCutType = "Counterbore"
hole5.HoleCutDiameter = 14.2875
hole5.HoleCutDepth = 4.191
hole5.Reversed = True

doc.recompute()
